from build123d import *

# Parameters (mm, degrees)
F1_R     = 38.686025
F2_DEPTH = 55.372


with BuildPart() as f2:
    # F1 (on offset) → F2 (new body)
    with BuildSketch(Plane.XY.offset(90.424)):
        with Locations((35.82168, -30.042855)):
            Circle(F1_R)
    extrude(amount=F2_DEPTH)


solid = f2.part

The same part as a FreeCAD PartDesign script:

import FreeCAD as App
import Part
import Sketcher
Q = App.Units.Quantity

doc = App.newDocument("Part")
body = doc.addObject("PartDesign::Body", "Body")

# Sketch on XY plane
sketch1 = doc.addObject("Sketcher::SketchObject", "Sketch")
body.addObject(sketch1)
sketch1.AttachmentSupport = (doc.XY_Plane, [""])
sketch1.MapMode = "FlatFace"
sketch1.AttachmentOffset = App.Placement(App.Vector(0, 0, 3.56 * 25.4), App.Rotation())
sketch1.addGeometry(Part.Circle(App.Vector(36, -30, 0), App.Vector(0, 0, 1), 39), False)
sketch1.addConstraint(Sketcher.Constraint("Diameter", 0, Q("77.37205 mm")))
sketch1.addConstraint(Sketcher.Constraint("DistanceX", -1, 1, 0, 3, Q("35.82168 mm")))
sketch1.addConstraint(Sketcher.Constraint("DistanceY", 0, 3, -1, 1, Q("30.042855 mm")))
pad1 = doc.addObject("PartDesign::Pad", "Pad")
body.addObject(pad1)
pad1.Profile = sketch1
pad1.Length = Q("2.18 in")

doc.recompute()
